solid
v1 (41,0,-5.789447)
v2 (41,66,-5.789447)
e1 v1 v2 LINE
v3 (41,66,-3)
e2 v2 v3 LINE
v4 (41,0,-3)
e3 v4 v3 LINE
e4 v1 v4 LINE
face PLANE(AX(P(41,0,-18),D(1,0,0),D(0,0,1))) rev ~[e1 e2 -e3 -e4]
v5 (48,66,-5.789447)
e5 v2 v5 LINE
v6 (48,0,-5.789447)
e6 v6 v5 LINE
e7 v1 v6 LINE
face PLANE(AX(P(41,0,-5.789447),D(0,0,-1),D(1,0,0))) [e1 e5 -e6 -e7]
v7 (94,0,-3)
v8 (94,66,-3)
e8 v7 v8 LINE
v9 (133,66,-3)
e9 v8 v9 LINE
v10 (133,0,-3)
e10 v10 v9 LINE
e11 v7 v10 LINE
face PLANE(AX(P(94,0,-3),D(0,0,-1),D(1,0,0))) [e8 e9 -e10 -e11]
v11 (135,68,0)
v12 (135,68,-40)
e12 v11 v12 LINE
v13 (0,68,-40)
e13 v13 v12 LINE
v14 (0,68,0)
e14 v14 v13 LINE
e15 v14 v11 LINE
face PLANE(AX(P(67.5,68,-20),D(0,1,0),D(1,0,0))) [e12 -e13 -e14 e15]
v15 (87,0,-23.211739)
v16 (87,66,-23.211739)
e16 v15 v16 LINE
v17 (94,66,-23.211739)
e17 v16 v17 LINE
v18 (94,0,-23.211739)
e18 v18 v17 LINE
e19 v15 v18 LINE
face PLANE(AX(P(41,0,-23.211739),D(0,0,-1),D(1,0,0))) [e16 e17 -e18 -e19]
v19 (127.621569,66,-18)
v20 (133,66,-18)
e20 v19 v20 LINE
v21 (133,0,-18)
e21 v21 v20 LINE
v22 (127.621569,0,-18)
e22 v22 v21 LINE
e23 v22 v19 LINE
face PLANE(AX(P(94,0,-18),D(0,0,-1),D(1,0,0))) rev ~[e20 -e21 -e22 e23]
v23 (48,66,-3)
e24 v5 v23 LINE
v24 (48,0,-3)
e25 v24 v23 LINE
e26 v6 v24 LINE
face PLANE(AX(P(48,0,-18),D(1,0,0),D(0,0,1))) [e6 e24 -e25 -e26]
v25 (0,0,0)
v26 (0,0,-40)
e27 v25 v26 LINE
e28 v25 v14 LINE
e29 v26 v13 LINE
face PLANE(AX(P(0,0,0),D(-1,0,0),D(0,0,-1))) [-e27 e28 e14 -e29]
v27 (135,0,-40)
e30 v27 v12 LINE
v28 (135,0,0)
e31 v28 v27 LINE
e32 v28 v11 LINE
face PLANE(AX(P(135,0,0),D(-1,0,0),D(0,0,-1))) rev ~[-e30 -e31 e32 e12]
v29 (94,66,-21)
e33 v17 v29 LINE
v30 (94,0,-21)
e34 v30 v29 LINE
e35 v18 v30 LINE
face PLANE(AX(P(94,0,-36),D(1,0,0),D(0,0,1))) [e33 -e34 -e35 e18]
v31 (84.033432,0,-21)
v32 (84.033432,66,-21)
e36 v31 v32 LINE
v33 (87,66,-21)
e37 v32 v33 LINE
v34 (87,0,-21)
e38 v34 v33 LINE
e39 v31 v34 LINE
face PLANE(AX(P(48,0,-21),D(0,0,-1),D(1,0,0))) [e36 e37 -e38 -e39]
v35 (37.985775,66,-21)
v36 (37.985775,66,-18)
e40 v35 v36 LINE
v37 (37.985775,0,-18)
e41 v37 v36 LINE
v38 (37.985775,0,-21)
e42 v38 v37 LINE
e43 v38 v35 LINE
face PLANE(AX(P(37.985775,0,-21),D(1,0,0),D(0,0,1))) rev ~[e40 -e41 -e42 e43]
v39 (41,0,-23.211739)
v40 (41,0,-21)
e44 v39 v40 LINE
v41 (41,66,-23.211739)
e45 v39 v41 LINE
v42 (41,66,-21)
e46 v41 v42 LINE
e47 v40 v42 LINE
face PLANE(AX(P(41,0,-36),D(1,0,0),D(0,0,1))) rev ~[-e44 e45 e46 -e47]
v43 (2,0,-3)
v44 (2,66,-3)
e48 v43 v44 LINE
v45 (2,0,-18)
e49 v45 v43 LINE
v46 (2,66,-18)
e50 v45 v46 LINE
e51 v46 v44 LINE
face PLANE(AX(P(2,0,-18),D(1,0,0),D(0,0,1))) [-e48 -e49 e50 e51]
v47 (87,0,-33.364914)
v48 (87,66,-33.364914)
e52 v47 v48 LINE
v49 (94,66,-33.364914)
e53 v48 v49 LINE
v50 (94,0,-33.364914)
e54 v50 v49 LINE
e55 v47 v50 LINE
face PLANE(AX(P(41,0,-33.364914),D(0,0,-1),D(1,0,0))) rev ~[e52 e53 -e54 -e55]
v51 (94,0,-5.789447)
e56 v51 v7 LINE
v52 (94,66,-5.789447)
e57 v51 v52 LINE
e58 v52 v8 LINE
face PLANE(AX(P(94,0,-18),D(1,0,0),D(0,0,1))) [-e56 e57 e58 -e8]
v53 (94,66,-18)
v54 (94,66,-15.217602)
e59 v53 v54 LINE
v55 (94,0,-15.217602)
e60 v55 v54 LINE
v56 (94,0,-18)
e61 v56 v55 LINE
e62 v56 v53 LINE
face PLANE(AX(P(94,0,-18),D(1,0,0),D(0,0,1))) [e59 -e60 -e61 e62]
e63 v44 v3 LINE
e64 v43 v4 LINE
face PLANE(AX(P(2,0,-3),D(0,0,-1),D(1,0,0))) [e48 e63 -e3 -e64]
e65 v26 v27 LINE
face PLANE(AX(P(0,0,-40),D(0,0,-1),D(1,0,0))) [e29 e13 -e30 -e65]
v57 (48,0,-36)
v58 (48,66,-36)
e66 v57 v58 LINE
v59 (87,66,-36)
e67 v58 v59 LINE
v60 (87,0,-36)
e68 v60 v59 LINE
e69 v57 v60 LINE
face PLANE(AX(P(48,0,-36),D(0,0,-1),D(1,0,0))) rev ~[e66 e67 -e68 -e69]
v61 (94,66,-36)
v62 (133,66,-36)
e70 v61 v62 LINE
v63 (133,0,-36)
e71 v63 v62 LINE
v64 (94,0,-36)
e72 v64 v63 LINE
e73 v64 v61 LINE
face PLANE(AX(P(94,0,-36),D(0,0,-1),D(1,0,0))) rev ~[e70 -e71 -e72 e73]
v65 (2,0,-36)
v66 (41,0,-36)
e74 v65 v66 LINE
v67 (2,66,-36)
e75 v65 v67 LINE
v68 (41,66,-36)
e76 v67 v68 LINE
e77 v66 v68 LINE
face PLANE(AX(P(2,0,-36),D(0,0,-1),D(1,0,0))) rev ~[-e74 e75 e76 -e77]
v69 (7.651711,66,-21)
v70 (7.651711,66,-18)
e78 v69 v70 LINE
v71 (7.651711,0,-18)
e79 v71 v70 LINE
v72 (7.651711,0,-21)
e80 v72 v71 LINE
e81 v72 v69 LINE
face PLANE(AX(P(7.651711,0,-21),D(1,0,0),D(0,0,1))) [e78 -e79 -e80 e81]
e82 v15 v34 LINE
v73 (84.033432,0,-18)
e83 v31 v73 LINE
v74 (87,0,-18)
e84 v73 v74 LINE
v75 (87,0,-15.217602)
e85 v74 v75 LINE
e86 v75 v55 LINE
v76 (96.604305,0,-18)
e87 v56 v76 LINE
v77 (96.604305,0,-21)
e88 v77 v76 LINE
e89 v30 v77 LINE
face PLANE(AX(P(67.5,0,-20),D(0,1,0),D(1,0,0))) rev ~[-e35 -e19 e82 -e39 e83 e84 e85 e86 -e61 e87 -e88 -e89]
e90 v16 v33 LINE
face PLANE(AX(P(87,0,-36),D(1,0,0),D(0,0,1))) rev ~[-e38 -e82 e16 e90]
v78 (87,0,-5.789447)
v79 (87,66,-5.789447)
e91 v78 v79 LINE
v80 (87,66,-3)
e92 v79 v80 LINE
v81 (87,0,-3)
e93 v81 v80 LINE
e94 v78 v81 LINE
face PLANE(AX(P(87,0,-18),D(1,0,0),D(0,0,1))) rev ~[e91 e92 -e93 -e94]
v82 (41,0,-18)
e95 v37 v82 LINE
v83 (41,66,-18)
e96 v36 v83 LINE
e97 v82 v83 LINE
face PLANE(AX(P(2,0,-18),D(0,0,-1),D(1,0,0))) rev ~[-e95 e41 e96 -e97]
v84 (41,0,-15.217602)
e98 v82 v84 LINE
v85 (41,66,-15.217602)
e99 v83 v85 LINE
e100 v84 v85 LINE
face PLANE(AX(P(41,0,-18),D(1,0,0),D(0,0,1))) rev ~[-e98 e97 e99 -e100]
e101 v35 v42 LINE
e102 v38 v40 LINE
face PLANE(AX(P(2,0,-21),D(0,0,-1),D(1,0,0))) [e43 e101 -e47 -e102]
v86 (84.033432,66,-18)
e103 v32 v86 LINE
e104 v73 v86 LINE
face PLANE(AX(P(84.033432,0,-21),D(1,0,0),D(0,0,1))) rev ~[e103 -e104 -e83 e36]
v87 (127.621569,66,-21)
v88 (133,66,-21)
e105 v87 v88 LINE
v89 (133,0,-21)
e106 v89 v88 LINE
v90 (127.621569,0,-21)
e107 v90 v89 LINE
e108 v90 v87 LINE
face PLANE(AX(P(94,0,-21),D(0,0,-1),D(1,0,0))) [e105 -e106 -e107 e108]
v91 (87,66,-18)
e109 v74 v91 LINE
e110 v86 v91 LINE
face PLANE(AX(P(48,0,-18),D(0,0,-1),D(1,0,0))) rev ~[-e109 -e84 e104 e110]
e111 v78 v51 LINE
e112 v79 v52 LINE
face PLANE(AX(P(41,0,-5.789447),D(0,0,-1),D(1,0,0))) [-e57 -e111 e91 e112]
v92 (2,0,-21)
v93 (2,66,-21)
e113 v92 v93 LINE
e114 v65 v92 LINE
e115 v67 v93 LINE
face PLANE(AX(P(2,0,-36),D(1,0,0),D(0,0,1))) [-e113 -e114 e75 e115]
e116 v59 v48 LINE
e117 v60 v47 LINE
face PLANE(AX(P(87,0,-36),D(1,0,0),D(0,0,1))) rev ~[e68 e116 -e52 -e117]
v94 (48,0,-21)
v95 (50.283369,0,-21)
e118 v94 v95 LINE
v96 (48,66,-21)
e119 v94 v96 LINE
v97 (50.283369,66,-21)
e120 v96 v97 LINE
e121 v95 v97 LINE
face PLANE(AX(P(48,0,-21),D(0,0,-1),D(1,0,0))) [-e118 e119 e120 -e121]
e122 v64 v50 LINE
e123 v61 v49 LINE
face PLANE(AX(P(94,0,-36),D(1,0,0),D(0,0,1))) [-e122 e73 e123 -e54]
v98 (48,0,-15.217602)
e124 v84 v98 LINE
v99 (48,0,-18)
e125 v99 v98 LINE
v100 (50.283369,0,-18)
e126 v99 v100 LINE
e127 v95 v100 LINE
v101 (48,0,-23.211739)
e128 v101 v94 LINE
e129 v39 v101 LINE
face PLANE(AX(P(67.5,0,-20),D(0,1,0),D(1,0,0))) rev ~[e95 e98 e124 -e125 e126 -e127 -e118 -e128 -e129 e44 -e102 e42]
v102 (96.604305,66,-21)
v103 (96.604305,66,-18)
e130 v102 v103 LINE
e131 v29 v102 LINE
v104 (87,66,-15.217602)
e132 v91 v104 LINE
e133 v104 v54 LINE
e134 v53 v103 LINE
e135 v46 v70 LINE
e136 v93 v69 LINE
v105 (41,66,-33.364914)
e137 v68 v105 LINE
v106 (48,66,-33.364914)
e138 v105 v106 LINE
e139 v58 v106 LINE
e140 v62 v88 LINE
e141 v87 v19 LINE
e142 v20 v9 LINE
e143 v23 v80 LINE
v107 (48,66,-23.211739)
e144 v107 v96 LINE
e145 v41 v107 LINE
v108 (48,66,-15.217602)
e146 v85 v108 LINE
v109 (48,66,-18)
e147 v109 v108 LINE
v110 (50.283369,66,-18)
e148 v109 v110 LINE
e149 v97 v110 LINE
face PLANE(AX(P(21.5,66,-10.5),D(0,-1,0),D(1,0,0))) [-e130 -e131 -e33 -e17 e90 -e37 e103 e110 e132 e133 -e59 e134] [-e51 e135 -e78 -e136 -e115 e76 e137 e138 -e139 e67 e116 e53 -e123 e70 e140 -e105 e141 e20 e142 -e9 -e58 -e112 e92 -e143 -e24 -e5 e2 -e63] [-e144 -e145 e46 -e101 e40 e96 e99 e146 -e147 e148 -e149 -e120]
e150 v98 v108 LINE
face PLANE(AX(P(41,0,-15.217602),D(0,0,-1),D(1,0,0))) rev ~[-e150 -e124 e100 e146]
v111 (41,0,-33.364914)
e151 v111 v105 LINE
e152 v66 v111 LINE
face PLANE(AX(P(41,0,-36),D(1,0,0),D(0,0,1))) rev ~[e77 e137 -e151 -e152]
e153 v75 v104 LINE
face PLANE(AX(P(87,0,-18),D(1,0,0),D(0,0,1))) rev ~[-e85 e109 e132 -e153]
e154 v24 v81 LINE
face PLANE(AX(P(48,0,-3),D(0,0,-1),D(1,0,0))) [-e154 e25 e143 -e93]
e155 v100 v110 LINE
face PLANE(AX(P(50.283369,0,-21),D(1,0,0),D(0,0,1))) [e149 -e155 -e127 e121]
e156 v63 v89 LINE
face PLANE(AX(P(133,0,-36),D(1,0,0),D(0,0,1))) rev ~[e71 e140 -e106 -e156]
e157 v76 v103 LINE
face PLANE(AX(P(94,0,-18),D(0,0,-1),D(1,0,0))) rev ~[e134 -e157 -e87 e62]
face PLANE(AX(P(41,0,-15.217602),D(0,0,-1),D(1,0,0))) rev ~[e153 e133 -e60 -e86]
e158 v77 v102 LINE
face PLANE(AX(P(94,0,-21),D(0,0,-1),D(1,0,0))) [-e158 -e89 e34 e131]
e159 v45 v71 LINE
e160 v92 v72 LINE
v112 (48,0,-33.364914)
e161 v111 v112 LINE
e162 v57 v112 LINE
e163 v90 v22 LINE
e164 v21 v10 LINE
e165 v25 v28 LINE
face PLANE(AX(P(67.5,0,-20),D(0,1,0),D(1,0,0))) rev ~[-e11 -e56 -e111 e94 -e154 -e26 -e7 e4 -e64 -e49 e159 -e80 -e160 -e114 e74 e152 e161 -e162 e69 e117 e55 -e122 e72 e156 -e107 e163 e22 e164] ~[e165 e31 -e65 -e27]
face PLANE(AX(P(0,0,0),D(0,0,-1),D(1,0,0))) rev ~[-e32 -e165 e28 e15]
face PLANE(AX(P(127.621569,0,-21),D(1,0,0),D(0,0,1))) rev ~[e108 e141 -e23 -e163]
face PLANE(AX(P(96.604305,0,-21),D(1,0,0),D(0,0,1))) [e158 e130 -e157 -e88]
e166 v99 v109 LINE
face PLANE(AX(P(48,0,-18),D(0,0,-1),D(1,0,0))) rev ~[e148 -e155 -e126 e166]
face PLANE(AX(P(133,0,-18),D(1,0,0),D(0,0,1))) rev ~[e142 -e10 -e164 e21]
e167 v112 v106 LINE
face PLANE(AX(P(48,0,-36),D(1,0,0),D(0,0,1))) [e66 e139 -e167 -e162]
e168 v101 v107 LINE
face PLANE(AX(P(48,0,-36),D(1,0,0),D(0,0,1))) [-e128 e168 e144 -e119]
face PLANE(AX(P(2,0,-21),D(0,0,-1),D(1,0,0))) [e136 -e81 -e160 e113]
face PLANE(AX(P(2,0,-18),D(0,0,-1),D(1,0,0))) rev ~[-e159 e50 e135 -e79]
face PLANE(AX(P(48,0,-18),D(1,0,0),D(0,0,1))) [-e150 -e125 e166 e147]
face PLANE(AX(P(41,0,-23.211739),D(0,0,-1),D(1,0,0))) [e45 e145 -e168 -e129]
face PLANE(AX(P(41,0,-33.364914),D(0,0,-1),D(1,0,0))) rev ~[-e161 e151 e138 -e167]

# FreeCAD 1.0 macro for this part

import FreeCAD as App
import Part
import Sketcher

doc = App.newDocument("Part")
body = doc.addObject("PartDesign::Body", "Body")

# Sketch on XZ plane
sketch1 = doc.addObject("Sketcher::SketchObject", "Sketch")
body.addObject(sketch1)
sketch1.AttachmentSupport = (doc.XZ_Plane, [""])
sketch1.MapMode = "FlatFace"
sketch1.addGeometry([
    Part.LineSegment(App.Vector(0, -40, 0), App.Vector(0, 0, 0)),
    Part.LineSegment(App.Vector(0, 0, 0), App.Vector(135, 0, 0)),
    Part.LineSegment(App.Vector(135, 0, 0), App.Vector(135, -40, 0)),
    Part.LineSegment(App.Vector(135, -40, 0), App.Vector(0, -40, 0)),
], False)
sketch1.addConstraint([
    Sketcher.Constraint("Coincident", 0, 2, 1, 1),
    Sketcher.Constraint("Coincident", 1, 2, 2, 1),
    Sketcher.Constraint("Coincident", 2, 2, 3, 1),
    Sketcher.Constraint("Coincident", 3, 2, 0, 1),
    Sketcher.Constraint("Vertical", 0),
    Sketcher.Constraint("Horizontal", 1),
    Sketcher.Constraint("Vertical", 2),
    Sketcher.Constraint("Horizontal", 3),
    Sketcher.Constraint("Coincident", 0, 2, -1, 1),
    Sketcher.Constraint("DistanceX", 1, 1, 1, 2, 135.0),
    Sketcher.Constraint("DistanceY", 0, 1, 0, 2, 40.0),
])
pad1 = doc.addObject("PartDesign::Pad", "Pad")
body.addObject(pad1)
pad1.Profile = sketch1
pad1.Length = 68
pad1.Reversed = True

# Sketch on XZ plane
sketch2 = doc.addObject("Sketcher::SketchObject", "Sketch001")
body.addObject(sketch2)
sketch2.AttachmentSupport = (doc.XZ_Plane, [""])
sketch2.MapMode = "FlatFace"
sketch2.addGeometry([
    Part.LineSegment(App.Vector(2, -3, 0), App.Vector(2, -18, 0)),  # 0
    Part.LineSegment(App.Vector(2, -18, 0), App.Vector(41, -18, 0)),  # 1
    Part.LineSegment(App.Vector(41, -18, 0), App.Vector(41, -3, 0)),  # 2
    Part.LineSegment(App.Vector(41, -3, 0), App.Vector(2, -3, 0)),  # 3
    Part.LineSegment(App.Vector(48, -3, 0), App.Vector(48, -18, 0)),  # 4
    Part.LineSegment(App.Vector(48, -18, 0), App.Vector(87, -18, 0)),  # 5
    Part.LineSegment(App.Vector(87, -18, 0), App.Vector(87, -3, 0)),  # 6
    Part.LineSegment(App.Vector(87, -3, 0), App.Vector(48, -3, 0)),  # 7
    Part.LineSegment(App.Vector(94, -3, 0), App.Vector(94, -18, 0)),  # 8
    Part.LineSegment(App.Vector(94, -18, 0), App.Vector(133, -18, 0)),  # 9
    Part.LineSegment(App.Vector(133, -18, 0), App.Vector(133, -3, 0)),  # 10
    Part.LineSegment(App.Vector(133, -3, 0), App.Vector(94, -3, 0)),  # 11
    Part.LineSegment(App.Vector(48, -21, 0), App.Vector(48, -36, 0)),  # 12
    Part.LineSegment(App.Vector(48, -36, 0), App.Vector(87, -36, 0)),  # 13
    Part.LineSegment(App.Vector(87, -36, 0), App.Vector(87, -21, 0)),  # 14
    Part.LineSegment(App.Vector(87, -21, 0), App.Vector(48, -21, 0)),  # 15
    Part.LineSegment(App.Vector(94, -21, 0), App.Vector(94, -36, 0)),  # 16
    Part.LineSegment(App.Vector(94, -36, 0), App.Vector(133, -36, 0)),  # 17
    Part.LineSegment(App.Vector(133, -36, 0), App.Vector(133, -21, 0)),  # 18
    Part.LineSegment(App.Vector(133, -21, 0), App.Vector(94, -21, 0)),  # 19
    Part.LineSegment(App.Vector(2, -21, 0), App.Vector(2, -36, 0)),  # 20
    Part.LineSegment(App.Vector(2, -36, 0), App.Vector(41, -36, 0)),  # 21
    Part.LineSegment(App.Vector(41, -36, 0), App.Vector(41, -21, 0)),  # 22
    Part.LineSegment(App.Vector(41, -21, 0), App.Vector(2, -21, 0)),  # 23
], False)
sketch2.addConstraint([
    Sketcher.Constraint("Coincident", 0, 2, 1, 1),
    Sketcher.Constraint("Coincident", 1, 2, 2, 1),
    Sketcher.Constraint("Coincident", 2, 2, 3, 1),
    Sketcher.Constraint("Coincident", 3, 2, 0, 1),
    Sketcher.Constraint("Coincident", 4, 2, 5, 1),
    Sketcher.Constraint("Coincident", 5, 2, 6, 1),
    Sketcher.Constraint("Coincident", 6, 2, 7, 1),
    Sketcher.Constraint("Coincident", 7, 2, 4, 1),
    Sketcher.Constraint("Coincident", 8, 2, 9, 1),
    Sketcher.Constraint("Coincident", 9, 2, 10, 1),
    Sketcher.Constraint("Coincident", 10, 2, 11, 1),
    Sketcher.Constraint("Coincident", 11, 2, 8, 1),
    Sketcher.Constraint("Coincident", 12, 2, 13, 1),
    Sketcher.Constraint("Coincident", 13, 2, 14, 1),
    Sketcher.Constraint("Coincident", 14, 2, 15, 1),
    Sketcher.Constraint("Coincident", 15, 2, 12, 1),
    Sketcher.Constraint("Coincident", 16, 2, 17, 1),
    Sketcher.Constraint("Coincident", 17, 2, 18, 1),
    Sketcher.Constraint("Coincident", 18, 2, 19, 1),
    Sketcher.Constraint("Coincident", 19, 2, 16, 1),
    Sketcher.Constraint("Coincident", 20, 2, 21, 1),
    Sketcher.Constraint("Coincident", 21, 2, 22, 1),
    Sketcher.Constraint("Coincident", 22, 2, 23, 1),
    Sketcher.Constraint("Coincident", 23, 2, 20, 1),
    Sketcher.Constraint("Vertical", 0),
    Sketcher.Constraint("Horizontal", 1),
    Sketcher.Constraint("Vertical", 2),
    Sketcher.Constraint("Horizontal", 3),
    Sketcher.Constraint("Vertical", 4),
    Sketcher.Constraint("Horizontal", 5),
    Sketcher.Constraint("Vertical", 6),
    Sketcher.Constraint("Horizontal", 7),
    Sketcher.Constraint("Vertical", 8),
    Sketcher.Constraint("Horizontal", 9),
    Sketcher.Constraint("Vertical", 10),
    Sketcher.Constraint("Horizontal", 11),
    Sketcher.Constraint("Vertical", 12),
    Sketcher.Constraint("Horizontal", 13),
    Sketcher.Constraint("Vertical", 14),
    Sketcher.Constraint("Horizontal", 15),
    Sketcher.Constraint("Vertical", 16),
    Sketcher.Constraint("Horizontal", 17),
    Sketcher.Constraint("Vertical", 18),
    Sketcher.Constraint("Horizontal", 19),
    Sketcher.Constraint("Vertical", 20),
    Sketcher.Constraint("Horizontal", 21),
    Sketcher.Constraint("Vertical", 22),
    Sketcher.Constraint("Horizontal", 23),
    Sketcher.Constraint("Horizontal", 1, 2, 4, 2),
    Sketcher.Constraint("Horizontal", 3, 2, 6, 2),
    Sketcher.Constraint("Horizontal", 5, 2, 8, 2),
    Sketcher.Constraint("Horizontal", 7, 2, 10, 2),
    Sketcher.Constraint("Horizontal", 13, 2, 16, 2),
    Sketcher.Constraint("Horizontal", 15, 2, 18, 2),
    Sketcher.Constraint("Horizontal", 17, 2, 20, 2),
    Sketcher.Constraint("Horizontal", 19, 2, 22, 2),
    Sketcher.Constraint("Vertical", 7, 2, 12, 2),
    Sketcher.Constraint("Vertical", 6, 2, 13, 2),
    Sketcher.Constraint("Vertical", 11, 2, 16, 2),
    Sketcher.Constraint("Vertical", 10, 2, 17, 2),
    Sketcher.Constraint("Vertical", 3, 2, 20, 2),
    Sketcher.Constraint("Vertical", 2, 2, 21, 2),
    Sketcher.Constraint("Equal", 3, 5),
    Sketcher.Constraint("Equal", 7, 9),
    Sketcher.Constraint("Equal", 10, 12),
    Sketcher.Constraint("DistanceX", 1, 1, 1, 2, 39.0),
    Sketcher.Constraint("DistanceY", 0, 2, 0, 1, 15.0),
    Sketcher.Constraint("DistanceX", -1, 1, 0, 2, 2.0),
    Sketcher.Constraint("DistanceY", 0, 2, -1, 1, 18.0),
    Sketcher.Constraint("DistanceX", -1, 1, 4, 2, 48.0),
    Sketcher.Constraint("DistanceX", -1, 1, 8, 2, 94.0),
    Sketcher.Constraint("DistanceY", 12, 2, -1, 1, 36.0),
])
pocket1 = doc.addObject("PartDesign::Pocket", "Pocket")
body.addObject(pocket1)
pocket1.Profile = sketch2
pocket1.Length = 66

# Sketch on XZ plane
sketch3 = doc.addObject("Sketcher::SketchObject", "Sketch002")
body.addObject(sketch3)
sketch3.AttachmentSupport = (doc.XZ_Plane, [""])
sketch3.MapMode = "FlatFace"
sketch3.addGeometry([
    Part.LineSegment(App.Vector(41, -6, 0), App.Vector(41, -15, 0)),
    Part.LineSegment(App.Vector(41, -15, 0), App.Vector(94, -15, 0)),
    Part.LineSegment(App.Vector(94, -15, 0), App.Vector(94, -6, 0)),
    Part.LineSegment(App.Vector(94, -6, 0), App.Vector(41, -6, 0)),
], False)
sketch3.addConstraint([
    Sketcher.Constraint("Coincident", 0, 2, 1, 1),
    Sketcher.Constraint("Coincident", 1, 2, 2, 1),
    Sketcher.Constraint("Coincident", 2, 2, 3, 1),
    Sketcher.Constraint("Coincident", 3, 2, 0, 1),
    Sketcher.Constraint("Vertical", 0),
    Sketcher.Constraint("Horizontal", 1),
    Sketcher.Constraint("Vertical", 2),
    Sketcher.Constraint("Horizontal", 3),
    Sketcher.Constraint("DistanceX", 1, 1, 1, 2, 53.0),
    Sketcher.Constraint("DistanceX", -1, 1, 0, 2, 41.0),
    Sketcher.Constraint("DistanceY", 0, 2, 0, 1, 9.428155),
    Sketcher.Constraint("DistanceY", 0, 2, -1, 1, 15.217602),
])
pocket2 = doc.addObject("PartDesign::Pocket", "Pocket001")
body.addObject(pocket2)
pocket2.Profile = sketch3
pocket2.Length = 66

# Sketch on XZ plane
sketch4 = doc.addObject("Sketcher::SketchObject", "Sketch003")
body.addObject(sketch4)
sketch4.AttachmentSupport = (doc.XZ_Plane, [""])
sketch4.MapMode = "FlatFace"
sketch4.addGeometry([
    Part.LineSegment(App.Vector(41, -23, 0), App.Vector(41, -33, 0)),
    Part.LineSegment(App.Vector(41, -33, 0), App.Vector(94, -33, 0)),
    Part.LineSegment(App.Vector(94, -33, 0), App.Vector(94, -23, 0)),
    Part.LineSegment(App.Vector(94, -23, 0), App.Vector(41, -23, 0)),
], False)
sketch4.addConstraint([
    Sketcher.Constraint("Coincident", 0, 2, 1, 1),
    Sketcher.Constraint("Coincident", 1, 2, 2, 1),
    Sketcher.Constraint("Coincident", 2, 2, 3, 1),
    Sketcher.Constraint("Coincident", 3, 2, 0, 1),
    Sketcher.Constraint("Vertical", 0),
    Sketcher.Constraint("Horizontal", 1),
    Sketcher.Constraint("Vertical", 2),
    Sketcher.Constraint("Horizontal", 3),
    Sketcher.Constraint("DistanceX", 1, 1, 1, 2, 53.0),
    Sketcher.Constraint("DistanceX", -1, 1, 0, 2, 41.0),
    Sketcher.Constraint("DistanceY", 0, 2, 0, 1, 10.153175),
    Sketcher.Constraint("DistanceY", 2, 2, -1, 1, 23.211739),
])
pocket3 = doc.addObject("PartDesign::Pocket", "Pocket002")
body.addObject(pocket3)
pocket3.Profile = sketch4
pocket3.Length = 66

# Sketch on XZ plane
sketch5 = doc.addObject("Sketcher::SketchObject", "Sketch004")
body.addObject(sketch5)
sketch5.AttachmentSupport = (doc.XZ_Plane, [""])
sketch5.MapMode = "FlatFace"
sketch5.addGeometry([
    Part.LineSegment(App.Vector(7.7, -18, 0), App.Vector(7.7, -21, 0)),  # 0
    Part.LineSegment(App.Vector(7.7, -21, 0), App.Vector(38, -21, 0)),  # 1
    Part.LineSegment(App.Vector(38, -21, 0), App.Vector(38, -18, 0)),  # 2
    Part.LineSegment(App.Vector(38, -18, 0), App.Vector(7.7, -18, 0)),  # 3
    Part.LineSegment(App.Vector(50.3, -18, 0), App.Vector(50.3, -21, 0)),  # 4
    Part.LineSegment(App.Vector(50.3, -21, 0), App.Vector(84, -21, 0)),  # 5
    Part.LineSegment(App.Vector(84, -21, 0), App.Vector(84, -18, 0)),  # 6
    Part.LineSegment(App.Vector(84, -18, 0), App.Vector(50.3, -18, 0)),  # 7
    Part.LineSegment(App.Vector(96.6, -18, 0), App.Vector(96.6, -21, 0)),  # 8
    Part.LineSegment(App.Vector(96.6, -21, 0), App.Vector(127.6, -21, 0)),  # 9
    Part.LineSegment(App.Vector(127.6, -21, 0), App.Vector(127.6, -18, 0)),  # 10
    Part.LineSegment(App.Vector(127.6, -18, 0), App.Vector(96.6, -18, 0)),  # 11
], False)
sketch5.addConstraint([
    Sketcher.Constraint("Coincident", 0, 2, 1, 1),
    Sketcher.Constraint("Coincident", 1, 2, 2, 1),
    Sketcher.Constraint("Coincident", 2, 2, 3, 1),
    Sketcher.Constraint("Coincident", 3, 2, 0, 1),
    Sketcher.Constraint("Coincident", 4, 2, 5, 1),
    Sketcher.Constraint("Coincident", 5, 2, 6, 1),
    Sketcher.Constraint("Coincident", 6, 2, 7, 1),
    Sketcher.Constraint("Coincident", 7, 2, 4, 1),
    Sketcher.Constraint("Coincident", 8, 2, 9, 1),
    Sketcher.Constraint("Coincident", 9, 2, 10, 1),
    Sketcher.Constraint("Coincident", 10, 2, 11, 1),
    Sketcher.Constraint("Coincident", 11, 2, 8, 1),
    Sketcher.Constraint("Vertical", 0),
    Sketcher.Constraint("Horizontal", 1),
    Sketcher.Constraint("Vertical", 2),
    Sketcher.Constraint("Horizontal", 3),
    Sketcher.Constraint("Vertical", 4),
    Sketcher.Constraint("Horizontal", 5),
    Sketcher.Constraint("Vertical", 6),
    Sketcher.Constraint("Horizontal", 7),
    Sketcher.Constraint("Vertical", 8),
    Sketcher.Constraint("Horizontal", 9),
    Sketcher.Constraint("Vertical", 10),
    Sketcher.Constraint("Horizontal", 11),
    Sketcher.Constraint("Horizontal", 1, 2, 4, 2),
    Sketcher.Constraint("Horizontal", 3, 2, 6, 2),
    Sketcher.Constraint("Horizontal", 5, 2, 8, 2),
    Sketcher.Constraint("Horizontal", 7, 2, 10, 2),
    Sketcher.Constraint("DistanceY", 0, 2, 0, 1, 3.0),
    Sketcher.Constraint("DistanceY", 0, 2, -1, 1, 21.0),
    Sketcher.Constraint("DistanceX", 4, 2, 9, 2, 77.338201),
    Sketcher.Constraint("DistanceX", 1, 1, 1, 2, 30.334065),
    Sketcher.Constraint("DistanceX", 5, 1, 5, 2, 33.750063),
    Sketcher.Constraint("DistanceX", 9, 1, 9, 2, 31.017264),
    Sketcher.Constraint("DistanceX", -1, 1, 0, 2, 7.651711),
    Sketcher.Constraint("DistanceX", -1, 1, 4, 2, 50.283369),
])
pocket4 = doc.addObject("PartDesign::Pocket", "Pocket003")
body.addObject(pocket4)
pocket4.Profile = sketch5
pocket4.Length = 66

doc.recompute()
